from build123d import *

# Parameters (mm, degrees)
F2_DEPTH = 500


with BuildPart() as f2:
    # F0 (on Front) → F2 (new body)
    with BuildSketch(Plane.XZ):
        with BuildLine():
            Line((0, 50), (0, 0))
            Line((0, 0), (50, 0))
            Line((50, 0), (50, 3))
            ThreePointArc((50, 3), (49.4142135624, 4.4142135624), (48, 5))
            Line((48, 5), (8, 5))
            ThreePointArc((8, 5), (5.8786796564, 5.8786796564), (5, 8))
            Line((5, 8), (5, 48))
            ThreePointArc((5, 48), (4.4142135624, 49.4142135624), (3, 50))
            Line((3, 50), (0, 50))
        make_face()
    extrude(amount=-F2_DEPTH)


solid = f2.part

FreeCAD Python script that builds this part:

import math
import FreeCAD as App
import Part
import Sketcher
from FreeCAD import Vector

doc = App.newDocument("Part")
body = doc.addObject("PartDesign::Body", "Body")

# Sketch on XZ plane
sketch1 = body.newObject("Sketcher::SketchObject", "Sketch")
sketch1.AttachmentSupport = (doc.getObject("XZ_Plane"), [""])
sketch1.MapMode = "FlatFace"
sketch1.addGeometry(Part.LineSegment(Vector(0, 50, 0), Vector(0, 0, 0)), False)
sketch1.addGeometry(Part.LineSegment(Vector(0, 0, 0), Vector(50, 0, 0)), False)
sketch1.addGeometry(Part.LineSegment(Vector(50, 0, 0), Vector(50, 3, 0)), False)
sketch1.addGeometry(Part.ArcOfCircle(Part.Circle(Vector(48, 3, 0), Vector(0, 0, 1), 2), math.radians(0), math.radians(90)), False)
sketch1.addGeometry(Part.LineSegment(Vector(48, 5, 0), Vector(8, 5, 0)), False)
sketch1.addGeometry(Part.ArcOfCircle(Part.Circle(Vector(8, 8, 0), Vector(0, 0, 1), 3), math.radians(180), math.radians(270)), False)
sketch1.addGeometry(Part.LineSegment(Vector(5, 8, 0), Vector(5, 48, 0)), False)
sketch1.addGeometry(Part.ArcOfCircle(Part.Circle(Vector(3, 48, 0), Vector(0, 0, 1), 2), math.radians(0), math.radians(90)), False)
sketch1.addGeometry(Part.LineSegment(Vector(3, 50, 0), Vector(0, 50, 0)), False)
sketch1.addConstraint(Sketcher.Constraint("Coincident", 0, 2, 1, 1))
sketch1.addConstraint(Sketcher.Constraint("Coincident", 1, 2, 2, 1))
sketch1.addConstraint(Sketcher.Constraint("Tangent", 2, 2, 3, 1))
sketch1.addConstraint(Sketcher.Constraint("Tangent", 3, 2, 4, 1))
sketch1.addConstraint(Sketcher.Constraint("Tangent", 4, 2, 5, 2))
sketch1.addConstraint(Sketcher.Constraint("Tangent", 5, 1, 6, 1))
sketch1.addConstraint(Sketcher.Constraint("Tangent", 6, 2, 7, 1))
sketch1.addConstraint(Sketcher.Constraint("Tangent", 7, 2, 8, 1))
sketch1.addConstraint(Sketcher.Constraint("Coincident", 8, 2, 0, 1))
sketch1.addConstraint(Sketcher.Constraint("Vertical", 0))
sketch1.addConstraint(Sketcher.Constraint("Horizontal", 1))
sketch1.addConstraint(Sketcher.Constraint("Vertical", 2))
sketch1.addConstraint(Sketcher.Constraint("Horizontal", 4))
sketch1.addConstraint(Sketcher.Constraint("Vertical", 6))
sketch1.addConstraint(Sketcher.Constraint("Horizontal", 8))
sketch1.addConstraint(Sketcher.Constraint("Coincident", 0, 2, -1, 1))
sketch1.addConstraint(Sketcher.Constraint("Equal", 3, 7))
sketch1.addConstraint(Sketcher.Constraint("Equal", 1, 0))
sketch1.addConstraint(Sketcher.Constraint("Equal", 8, 2))
sketch1.addConstraint(Sketcher.Constraint("Radius", 3, 2.0))
sketch1.addConstraint(Sketcher.Constraint("Radius", 5, 3.0))
sketch1.addConstraint(Sketcher.Constraint("DistanceX", 1, 1, 1, 2, 50.0))
sketch1.addConstraint(Sketcher.Constraint("DistanceX", 4, 2, 4, 1, 40.0))
pad1 = body.newObject("PartDesign::Pad", "Pad")
pad1.Profile = sketch1
pad1.Length = 500
pad1.Reversed = True

doc.recompute()
